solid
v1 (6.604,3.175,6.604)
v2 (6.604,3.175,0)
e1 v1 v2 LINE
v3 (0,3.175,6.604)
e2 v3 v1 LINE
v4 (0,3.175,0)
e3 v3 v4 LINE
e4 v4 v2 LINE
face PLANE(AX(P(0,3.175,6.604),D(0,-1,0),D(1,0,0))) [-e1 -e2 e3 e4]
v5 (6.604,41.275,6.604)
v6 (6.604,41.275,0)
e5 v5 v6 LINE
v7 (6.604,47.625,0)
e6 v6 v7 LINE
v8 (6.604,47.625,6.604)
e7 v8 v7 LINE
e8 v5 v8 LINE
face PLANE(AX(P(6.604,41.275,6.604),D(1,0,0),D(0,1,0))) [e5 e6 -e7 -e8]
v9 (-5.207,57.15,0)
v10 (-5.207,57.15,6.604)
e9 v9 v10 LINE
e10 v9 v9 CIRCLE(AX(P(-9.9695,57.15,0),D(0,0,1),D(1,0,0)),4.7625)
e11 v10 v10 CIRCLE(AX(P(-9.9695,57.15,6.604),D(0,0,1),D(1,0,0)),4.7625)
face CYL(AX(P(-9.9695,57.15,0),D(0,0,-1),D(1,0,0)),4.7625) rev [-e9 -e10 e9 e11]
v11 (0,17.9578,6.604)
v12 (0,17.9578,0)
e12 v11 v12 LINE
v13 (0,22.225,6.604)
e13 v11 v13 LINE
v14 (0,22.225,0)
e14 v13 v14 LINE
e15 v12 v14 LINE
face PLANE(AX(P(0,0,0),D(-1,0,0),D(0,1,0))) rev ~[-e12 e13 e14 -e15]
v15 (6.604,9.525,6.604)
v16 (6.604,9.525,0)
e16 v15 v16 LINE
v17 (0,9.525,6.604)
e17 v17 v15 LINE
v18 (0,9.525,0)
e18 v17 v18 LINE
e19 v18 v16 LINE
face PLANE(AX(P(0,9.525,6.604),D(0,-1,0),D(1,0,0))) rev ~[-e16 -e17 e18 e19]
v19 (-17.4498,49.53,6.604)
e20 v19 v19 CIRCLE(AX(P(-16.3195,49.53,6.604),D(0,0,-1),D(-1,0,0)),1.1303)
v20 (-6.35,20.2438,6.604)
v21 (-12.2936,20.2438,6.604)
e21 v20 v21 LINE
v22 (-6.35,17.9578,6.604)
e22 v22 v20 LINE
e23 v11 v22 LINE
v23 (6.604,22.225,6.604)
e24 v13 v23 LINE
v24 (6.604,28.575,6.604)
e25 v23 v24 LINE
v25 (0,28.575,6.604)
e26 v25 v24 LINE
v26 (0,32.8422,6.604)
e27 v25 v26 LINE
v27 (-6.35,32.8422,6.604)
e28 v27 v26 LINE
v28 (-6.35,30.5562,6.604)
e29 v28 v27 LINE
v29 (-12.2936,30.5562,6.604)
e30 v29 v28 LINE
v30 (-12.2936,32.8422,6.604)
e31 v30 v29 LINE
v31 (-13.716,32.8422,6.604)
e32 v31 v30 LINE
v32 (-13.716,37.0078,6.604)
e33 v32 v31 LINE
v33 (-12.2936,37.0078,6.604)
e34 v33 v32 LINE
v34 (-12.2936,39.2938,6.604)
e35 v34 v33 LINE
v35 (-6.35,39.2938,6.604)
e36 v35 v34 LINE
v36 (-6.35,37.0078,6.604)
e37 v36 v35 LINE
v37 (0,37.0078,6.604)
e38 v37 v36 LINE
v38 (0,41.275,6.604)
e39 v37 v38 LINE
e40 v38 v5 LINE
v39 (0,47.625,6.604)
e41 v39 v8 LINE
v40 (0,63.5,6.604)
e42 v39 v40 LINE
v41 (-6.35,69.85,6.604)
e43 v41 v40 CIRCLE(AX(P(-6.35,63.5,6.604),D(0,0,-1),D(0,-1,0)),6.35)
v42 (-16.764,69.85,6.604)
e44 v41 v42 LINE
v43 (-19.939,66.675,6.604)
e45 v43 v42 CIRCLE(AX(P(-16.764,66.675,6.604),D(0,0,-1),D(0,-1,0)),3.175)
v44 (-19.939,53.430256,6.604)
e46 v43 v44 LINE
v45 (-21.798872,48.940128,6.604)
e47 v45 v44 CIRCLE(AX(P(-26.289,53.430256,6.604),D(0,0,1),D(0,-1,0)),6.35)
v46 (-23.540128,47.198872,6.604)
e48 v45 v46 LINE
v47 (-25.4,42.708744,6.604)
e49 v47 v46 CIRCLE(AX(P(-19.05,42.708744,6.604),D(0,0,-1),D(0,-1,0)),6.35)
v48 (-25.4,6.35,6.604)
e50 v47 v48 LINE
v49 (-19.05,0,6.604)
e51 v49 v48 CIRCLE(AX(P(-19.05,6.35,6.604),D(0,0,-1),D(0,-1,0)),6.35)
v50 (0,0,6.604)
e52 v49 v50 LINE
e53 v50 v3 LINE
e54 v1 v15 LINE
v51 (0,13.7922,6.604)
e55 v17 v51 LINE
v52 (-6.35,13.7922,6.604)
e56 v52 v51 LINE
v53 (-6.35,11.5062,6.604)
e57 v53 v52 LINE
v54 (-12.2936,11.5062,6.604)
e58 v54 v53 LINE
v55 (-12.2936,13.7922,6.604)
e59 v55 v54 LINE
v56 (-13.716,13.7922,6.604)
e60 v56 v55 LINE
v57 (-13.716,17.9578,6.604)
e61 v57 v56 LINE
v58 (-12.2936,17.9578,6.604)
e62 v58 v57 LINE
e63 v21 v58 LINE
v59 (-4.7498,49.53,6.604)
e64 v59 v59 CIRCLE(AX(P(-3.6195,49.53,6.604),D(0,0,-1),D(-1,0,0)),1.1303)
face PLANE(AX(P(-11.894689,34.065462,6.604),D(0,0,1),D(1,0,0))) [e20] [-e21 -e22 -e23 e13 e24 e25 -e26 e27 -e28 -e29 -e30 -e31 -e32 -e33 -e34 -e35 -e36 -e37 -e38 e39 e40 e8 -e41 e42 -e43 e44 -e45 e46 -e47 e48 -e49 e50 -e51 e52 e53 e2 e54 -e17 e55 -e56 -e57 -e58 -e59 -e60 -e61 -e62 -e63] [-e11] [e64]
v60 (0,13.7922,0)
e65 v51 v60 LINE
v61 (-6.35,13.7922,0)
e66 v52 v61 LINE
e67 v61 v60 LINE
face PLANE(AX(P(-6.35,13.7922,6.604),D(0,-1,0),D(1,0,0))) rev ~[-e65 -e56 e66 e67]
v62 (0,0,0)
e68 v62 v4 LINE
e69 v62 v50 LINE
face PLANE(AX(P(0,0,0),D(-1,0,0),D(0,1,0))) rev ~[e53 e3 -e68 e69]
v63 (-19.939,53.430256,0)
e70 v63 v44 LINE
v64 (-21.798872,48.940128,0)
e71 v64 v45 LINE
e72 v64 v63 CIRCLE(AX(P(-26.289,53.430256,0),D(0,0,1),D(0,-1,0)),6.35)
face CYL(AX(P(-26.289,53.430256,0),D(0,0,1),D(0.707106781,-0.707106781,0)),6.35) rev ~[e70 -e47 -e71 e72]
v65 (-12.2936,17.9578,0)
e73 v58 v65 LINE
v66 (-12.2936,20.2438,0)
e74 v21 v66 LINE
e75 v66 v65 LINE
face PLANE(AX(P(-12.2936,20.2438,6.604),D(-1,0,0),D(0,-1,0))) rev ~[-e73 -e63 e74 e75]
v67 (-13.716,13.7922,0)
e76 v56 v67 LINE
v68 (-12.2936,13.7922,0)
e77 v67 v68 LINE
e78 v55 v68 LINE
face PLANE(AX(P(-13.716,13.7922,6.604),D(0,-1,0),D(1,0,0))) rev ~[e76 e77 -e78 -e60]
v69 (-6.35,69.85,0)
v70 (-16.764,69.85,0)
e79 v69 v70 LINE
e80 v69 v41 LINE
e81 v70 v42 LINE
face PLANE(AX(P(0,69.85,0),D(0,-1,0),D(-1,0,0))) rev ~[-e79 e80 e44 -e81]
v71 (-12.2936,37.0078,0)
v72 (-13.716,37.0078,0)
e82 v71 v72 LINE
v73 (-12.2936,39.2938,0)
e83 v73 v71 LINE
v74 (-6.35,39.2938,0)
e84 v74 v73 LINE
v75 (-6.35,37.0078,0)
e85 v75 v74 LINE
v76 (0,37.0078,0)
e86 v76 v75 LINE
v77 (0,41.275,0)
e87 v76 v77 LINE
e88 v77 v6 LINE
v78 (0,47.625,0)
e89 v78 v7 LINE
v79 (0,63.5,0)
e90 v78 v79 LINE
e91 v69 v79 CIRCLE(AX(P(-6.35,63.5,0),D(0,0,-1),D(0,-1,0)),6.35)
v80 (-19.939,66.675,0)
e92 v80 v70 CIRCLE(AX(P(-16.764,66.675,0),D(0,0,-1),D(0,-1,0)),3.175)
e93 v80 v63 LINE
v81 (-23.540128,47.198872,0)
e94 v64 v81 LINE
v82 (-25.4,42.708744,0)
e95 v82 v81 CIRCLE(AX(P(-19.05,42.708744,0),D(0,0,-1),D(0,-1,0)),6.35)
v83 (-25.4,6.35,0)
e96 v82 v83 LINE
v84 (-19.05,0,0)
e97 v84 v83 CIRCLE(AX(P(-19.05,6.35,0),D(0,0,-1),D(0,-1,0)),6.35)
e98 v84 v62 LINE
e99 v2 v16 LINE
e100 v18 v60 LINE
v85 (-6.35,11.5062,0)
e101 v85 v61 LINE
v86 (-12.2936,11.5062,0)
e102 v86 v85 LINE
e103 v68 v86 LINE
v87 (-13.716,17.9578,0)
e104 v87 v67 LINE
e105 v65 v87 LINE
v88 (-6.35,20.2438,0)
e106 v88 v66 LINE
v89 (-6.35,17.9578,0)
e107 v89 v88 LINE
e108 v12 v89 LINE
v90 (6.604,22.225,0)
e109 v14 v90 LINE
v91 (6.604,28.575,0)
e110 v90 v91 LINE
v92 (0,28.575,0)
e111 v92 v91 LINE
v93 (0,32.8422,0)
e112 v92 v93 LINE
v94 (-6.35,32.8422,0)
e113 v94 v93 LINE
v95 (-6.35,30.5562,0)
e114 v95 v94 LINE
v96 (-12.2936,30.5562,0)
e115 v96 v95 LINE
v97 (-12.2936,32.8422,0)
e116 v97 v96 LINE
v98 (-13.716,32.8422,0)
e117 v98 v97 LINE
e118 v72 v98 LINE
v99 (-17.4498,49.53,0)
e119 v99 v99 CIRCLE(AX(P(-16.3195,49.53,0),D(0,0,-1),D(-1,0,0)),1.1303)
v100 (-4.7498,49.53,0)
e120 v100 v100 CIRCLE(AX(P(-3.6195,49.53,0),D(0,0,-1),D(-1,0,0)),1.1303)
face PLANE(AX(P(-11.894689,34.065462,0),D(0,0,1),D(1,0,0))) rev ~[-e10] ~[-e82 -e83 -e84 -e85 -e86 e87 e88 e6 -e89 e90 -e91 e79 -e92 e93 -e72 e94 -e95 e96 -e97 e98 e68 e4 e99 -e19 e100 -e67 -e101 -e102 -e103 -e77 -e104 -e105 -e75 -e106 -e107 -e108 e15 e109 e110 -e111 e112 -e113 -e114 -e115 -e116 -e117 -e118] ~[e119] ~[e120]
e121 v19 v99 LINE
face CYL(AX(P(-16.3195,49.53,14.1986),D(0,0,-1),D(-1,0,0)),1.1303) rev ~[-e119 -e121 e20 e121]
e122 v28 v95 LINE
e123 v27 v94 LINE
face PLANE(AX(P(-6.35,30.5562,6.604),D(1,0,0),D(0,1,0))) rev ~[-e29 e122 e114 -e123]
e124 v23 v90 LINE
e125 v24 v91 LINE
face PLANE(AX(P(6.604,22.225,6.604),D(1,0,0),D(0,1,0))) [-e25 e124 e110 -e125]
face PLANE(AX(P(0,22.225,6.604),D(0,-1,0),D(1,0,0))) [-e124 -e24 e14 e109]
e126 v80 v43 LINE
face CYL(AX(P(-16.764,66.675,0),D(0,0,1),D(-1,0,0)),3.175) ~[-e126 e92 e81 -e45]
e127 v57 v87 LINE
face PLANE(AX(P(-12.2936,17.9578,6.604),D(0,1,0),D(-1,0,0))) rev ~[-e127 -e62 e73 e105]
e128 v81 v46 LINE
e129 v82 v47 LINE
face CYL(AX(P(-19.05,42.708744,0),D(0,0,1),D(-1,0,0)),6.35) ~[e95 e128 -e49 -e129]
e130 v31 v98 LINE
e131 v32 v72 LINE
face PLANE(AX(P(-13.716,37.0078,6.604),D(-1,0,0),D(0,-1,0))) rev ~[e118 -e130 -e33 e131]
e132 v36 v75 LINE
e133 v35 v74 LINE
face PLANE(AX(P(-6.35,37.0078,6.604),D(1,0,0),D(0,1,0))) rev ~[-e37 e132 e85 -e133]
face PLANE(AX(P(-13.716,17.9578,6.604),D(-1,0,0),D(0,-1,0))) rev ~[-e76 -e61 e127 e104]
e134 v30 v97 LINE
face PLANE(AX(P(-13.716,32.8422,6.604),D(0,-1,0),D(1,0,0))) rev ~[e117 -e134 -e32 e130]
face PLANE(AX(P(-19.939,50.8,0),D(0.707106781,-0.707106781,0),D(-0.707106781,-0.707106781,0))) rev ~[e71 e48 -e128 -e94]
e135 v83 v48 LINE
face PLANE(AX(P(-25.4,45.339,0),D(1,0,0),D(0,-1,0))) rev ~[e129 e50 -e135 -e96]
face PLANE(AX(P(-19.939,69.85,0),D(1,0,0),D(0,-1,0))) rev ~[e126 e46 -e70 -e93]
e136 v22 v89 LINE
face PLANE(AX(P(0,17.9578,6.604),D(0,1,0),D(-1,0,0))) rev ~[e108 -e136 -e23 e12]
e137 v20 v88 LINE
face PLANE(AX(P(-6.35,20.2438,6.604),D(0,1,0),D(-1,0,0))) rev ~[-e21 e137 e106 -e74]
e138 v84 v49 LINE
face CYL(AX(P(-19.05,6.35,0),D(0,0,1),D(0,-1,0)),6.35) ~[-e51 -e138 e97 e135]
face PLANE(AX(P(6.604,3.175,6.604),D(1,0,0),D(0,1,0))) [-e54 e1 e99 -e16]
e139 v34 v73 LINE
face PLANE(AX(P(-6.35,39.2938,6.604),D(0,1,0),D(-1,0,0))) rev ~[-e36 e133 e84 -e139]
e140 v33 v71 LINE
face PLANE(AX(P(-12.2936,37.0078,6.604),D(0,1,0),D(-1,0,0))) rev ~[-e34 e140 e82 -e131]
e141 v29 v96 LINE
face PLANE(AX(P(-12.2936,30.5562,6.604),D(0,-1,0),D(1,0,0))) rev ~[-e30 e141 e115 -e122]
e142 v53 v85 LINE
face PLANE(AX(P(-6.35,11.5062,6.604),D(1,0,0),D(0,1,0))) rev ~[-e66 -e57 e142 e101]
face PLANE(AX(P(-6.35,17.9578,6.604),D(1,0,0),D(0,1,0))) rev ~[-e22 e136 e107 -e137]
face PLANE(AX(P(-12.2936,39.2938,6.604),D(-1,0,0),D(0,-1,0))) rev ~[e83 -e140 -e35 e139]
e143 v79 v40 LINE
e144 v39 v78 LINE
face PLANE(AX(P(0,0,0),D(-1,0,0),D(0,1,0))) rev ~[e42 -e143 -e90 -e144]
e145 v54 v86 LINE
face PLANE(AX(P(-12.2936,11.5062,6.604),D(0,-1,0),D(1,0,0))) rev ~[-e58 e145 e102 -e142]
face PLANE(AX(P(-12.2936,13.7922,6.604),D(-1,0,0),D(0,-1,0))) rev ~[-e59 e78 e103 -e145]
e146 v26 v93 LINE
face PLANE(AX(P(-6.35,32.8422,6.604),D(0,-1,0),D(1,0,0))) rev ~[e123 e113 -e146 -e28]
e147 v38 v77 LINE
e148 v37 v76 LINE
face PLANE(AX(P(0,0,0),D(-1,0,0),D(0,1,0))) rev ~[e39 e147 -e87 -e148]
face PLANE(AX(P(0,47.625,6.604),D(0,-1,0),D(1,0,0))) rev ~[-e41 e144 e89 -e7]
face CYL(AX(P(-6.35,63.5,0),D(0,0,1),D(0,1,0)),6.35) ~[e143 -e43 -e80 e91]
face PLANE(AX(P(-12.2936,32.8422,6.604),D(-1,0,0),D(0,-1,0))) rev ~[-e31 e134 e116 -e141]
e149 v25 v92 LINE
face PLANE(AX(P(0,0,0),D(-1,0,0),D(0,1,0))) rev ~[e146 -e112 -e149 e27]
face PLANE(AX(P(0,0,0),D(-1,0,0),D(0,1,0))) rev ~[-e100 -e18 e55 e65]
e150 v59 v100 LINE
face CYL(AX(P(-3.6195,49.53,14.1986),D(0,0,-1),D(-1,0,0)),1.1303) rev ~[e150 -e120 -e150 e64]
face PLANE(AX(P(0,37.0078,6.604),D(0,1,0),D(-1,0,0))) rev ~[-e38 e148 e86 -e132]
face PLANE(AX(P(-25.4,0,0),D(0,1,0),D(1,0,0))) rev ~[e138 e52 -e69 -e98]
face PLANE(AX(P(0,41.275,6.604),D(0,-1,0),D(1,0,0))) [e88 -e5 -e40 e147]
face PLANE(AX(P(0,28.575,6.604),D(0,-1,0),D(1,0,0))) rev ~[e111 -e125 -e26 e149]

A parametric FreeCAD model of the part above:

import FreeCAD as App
import Part
import Sketcher
Q = App.Units.Quantity


def edges_at(feature, points):
    """Names of the edges that pass closest to the given points."""
    edges = feature.Shape.Edges
    near = lambda p: min(range(len(edges)), key=lambda i: edges[i].distToShape(Part.Vertex(*p))[0])
    return sorted({f"Edge{near(p) + 1}" for p in points})


def add_polygon(sketch, points):
    """Adds a closed chain of lines whose ends are joined by coincident constraints."""
    first, n = sketch.GeometryCount, len(points)
    for a, b in zip(points, points[1:] + points[:1]):
        sketch.addGeometry(Part.LineSegment(App.Vector(*a, 0), App.Vector(*b, 0)), False)
    for i in range(n):
        sketch.addConstraint(Sketcher.Constraint("Coincident", first + i, 2, first + (i + 1) % n, 1))

doc = App.newDocument("Part")
params = doc.addObject("Spreadsheet::Sheet", "Params")
for row, (alias, value) in enumerate([
    ("sketch1_width", "1 in"),
    ("sketch1_diameter", "0.375 in"),
    ("sketch1_height", "2.75 in"),
    ("sketch1_width2", "0.785 in"),
    ("pad1_length", "0.26 in"),
    ("sketch2_width", "0.25 in"),
    ("sketch2_height", "0.09 in"),
    ("sketch2_width2", "0.056 in"),
    ("sketch2_width3", "0.234 in"),
    ("sketch2_height2", "0.164 in"),
    ("sketch3_width", "0.26 in"),
    ("sketch3_height", "0.25 in"),
    ("pad2_length", "0.26 in"),
    ("fillet_radius", "0.25 in"),
    ("fillet2_radius", "0.125 in"),
    ("sketch4_diameter", "0.089 in"),
    ("hole_diameter", "0.089 in"),
    ("hole_depth", "0.299 in"),
], start=1):
    params.set(f"A{row}", alias)
    params.set(f"B{row}", "=" + value)
    params.setAlias(f"B{row}", alias)

body = doc.addObject("PartDesign::Body", "Body")

sketch1 = doc.addObject("Sketcher::SketchObject", "Sketch")
body.addObject(sketch1)
sketch1.AttachmentSupport = (doc.XY_Plane, [""])
sketch1.MapMode = "FlatFace"
add_polygon(sketch1, [(0, 0), (0, 69.8), (-19.9, 69.8), (-19.9, 50.8), (-25.4, 45.3), (-25.4, 0)])
sketch1.addGeometry(Part.Circle(App.Vector(-10, 57.1, 0), App.Vector(0, 0, 1), 4.8), False)
sketch1.addConstraint([
    Sketcher.Constraint("Vertical", 0),
    Sketcher.Constraint("Horizontal", 1),
    Sketcher.Constraint("Vertical", 2),
    Sketcher.Constraint("Vertical", 4),
    Sketcher.Constraint("Horizontal", 5),
    Sketcher.Constraint("Coincident", 5, 2, -1, 1),
    Sketcher.Constraint("DistanceX", 5, 1, 5, 2, Q("1 in")),
    Sketcher.Constraint("Diameter", 6, Q("0.375 in")),
    Sketcher.Constraint("DistanceY", -1, 1, 2, 2, Q("2 in")),
    Sketcher.Constraint("Angle", 3, Q("-135 deg")),
    Sketcher.Constraint("DistanceY", 0, 1, 0, 2, Q("2.75 in")),
    Sketcher.Constraint("DistanceY", 6, 3, 0, 2, Q("0.5 in")),
    Sketcher.Constraint("DistanceX", 1, 2, 1, 1, Q("0.785 in")),
    Sketcher.Constraint("DistanceX", 6, 3, -1, 1, Q("0.3925 in")),
])
sketch1.setExpression("Constraints[12]", "Params.sketch1_width")
sketch1.setExpression("Constraints[13]", "Params.sketch1_diameter")
sketch1.setExpression("Constraints[16]", "Params.sketch1_height")
sketch1.setExpression("Constraints[18]", "Params.sketch1_width2")
pad1 = doc.addObject("PartDesign::Pad", "Pad")
body.addObject(pad1)
pad1.Profile = sketch1
pad1.setExpression("Length", "Params.pad1_length")

sketch2 = doc.addObject("Sketcher::SketchObject", "Sketch001")
body.addObject(sketch2)
sketch2.AttachmentSupport = (doc.XY_Plane, [""])
sketch2.MapMode = "FlatFace"
sketch2.AttachmentOffset = App.Placement(App.Vector(0, 0, 0.26 * 25.4), App.Rotation())
add_polygon(sketch2, [(-12.3, 37), (-13.7, 37), (-13.7, 32.8), (-12.3, 32.8), (-12.3, 30.6), (-6.3, 30.6), (-6.3, 32.8), (0, 32.8), (0, 37), (-6.3, 37), (-6.3, 39.3), (-12.3, 39.3)])
add_polygon(sketch2, [(-12.3, 20.2), (-12.3, 18), (-13.7, 18), (-13.7, 13.8), (-12.3, 13.8), (-12.3, 11.5), (-6.3, 11.5), (-6.3, 13.8), (0, 13.8), (0, 18), (-6.3, 18), (-6.3, 20.2)])
sketch2.addConstraint([
    Sketcher.Constraint("Horizontal", 0),
    Sketcher.Constraint("Vertical", 1),
    Sketcher.Constraint("Horizontal", 2),
    Sketcher.Constraint("Vertical", 3),
    Sketcher.Constraint("Horizontal", 4),
    Sketcher.Constraint("Vertical", 5),
    Sketcher.Constraint("Horizontal", 6),
    Sketcher.Constraint("Vertical", 7),
    Sketcher.Constraint("Horizontal", 8),
    Sketcher.Constraint("Vertical", 9),
    Sketcher.Constraint("Horizontal", 10),
    Sketcher.Constraint("Vertical", 11),
    Sketcher.Constraint("Vertical", 12),
    Sketcher.Constraint("Horizontal", 13),
    Sketcher.Constraint("Vertical", 14),
    Sketcher.Constraint("Horizontal", 15),
    Sketcher.Constraint("Vertical", 16),
    Sketcher.Constraint("Horizontal", 17),
    Sketcher.Constraint("Vertical", 18),
    Sketcher.Constraint("Horizontal", 19),
    Sketcher.Constraint("Vertical", 20),
    Sketcher.Constraint("Horizontal", 21),
    Sketcher.Constraint("Vertical", 22),
    Sketcher.Constraint("Horizontal", 23),
    Sketcher.Constraint("PointOnObject", 6, 2, -2),
    Sketcher.Constraint("PointOnObject", 19, 2, -2),
    Sketcher.Constraint("Horizontal", 2, 2, 5, 2),
    Sketcher.Constraint("Horizontal", 0, 2, 7, 2),
    Sketcher.Constraint("Horizontal", 15, 2, 18, 2),
    Sketcher.Constraint("Horizontal", 13, 2, 20, 2),
    Sketcher.Constraint("Vertical", 5, 2, 8, 2),
    Sketcher.Constraint("Vertical", 3, 2, 10, 2),
    Sketcher.Constraint("Vertical", 11, 2, 12, 2),
    Sketcher.Constraint("Vertical", 1, 2, 13, 2),
    Sketcher.Constraint("Vertical", 12, 2, 15, 2),
    Sketcher.Constraint("Vertical", 9, 2, 17, 2),
    Sketcher.Constraint("Vertical", 18, 2, 21, 2),
    Sketcher.Constraint("Equal", 5, 9),
    Sketcher.Constraint("Equal", 11, 12),
    Sketcher.Constraint("Equal", 7, 14),
    Sketcher.Constraint("Equal", 12, 16),
    Sketcher.Constraint("DistanceX", 6, 1, 6, 2, Q("0.25 in")),
    Sketcher.Constraint("DistanceY", 3, 2, 3, 1, Q("0.09 in")),
    Sketcher.Constraint("DistanceX", 0, 2, 0, 1, Q("0.056 in")),
    Sketcher.Constraint("DistanceX", 4, 1, 4, 2, Q("0.234 in")),
    Sketcher.Constraint("DistanceY", 1, 2, 1, 1, Q("0.164 in")),
    Sketcher.Constraint("DistanceY", 14, 2, 3, 2, Q("0.66 in")),
    Sketcher.Constraint("DistanceY", -1, 1, 0, 2, Q("1.457 in")),
])
sketch2.setExpression("Constraints[65]", "Params.sketch2_width")
sketch2.setExpression("Constraints[66]", "Params.sketch2_height")
sketch2.setExpression("Constraints[67]", "Params.sketch2_width2")
sketch2.setExpression("Constraints[68]", "Params.sketch2_width3")
sketch2.setExpression("Constraints[69]", "Params.sketch2_height2")
pocket1 = doc.addObject("PartDesign::Pocket", "Pocket")
body.addObject(pocket1)
pocket1.Profile = sketch2
pocket1.Type = "ThroughAll"

sketch3 = doc.addObject("Sketcher::SketchObject", "Sketch002")
body.addObject(sketch3)
sketch3.AttachmentSupport = (doc.XY_Plane, [""])
sketch3.MapMode = "FlatFace"
sketch3.AttachmentOffset = App.Placement(App.Vector(0, 0, 0.26 * 25.4), App.Rotation())
add_polygon(sketch3, [(0, 48), (0, 41), (7, 41), (7, 48)])
add_polygon(sketch3, [(0, 29), (0, 22), (7, 22), (7, 29)])
add_polygon(sketch3, [(0, 10), (0, 3), (7, 3), (7, 10)])
sketch3.addConstraint([
    Sketcher.Constraint("Vertical", 0),
    Sketcher.Constraint("Horizontal", 1),
    Sketcher.Constraint("Vertical", 2),
    Sketcher.Constraint("Horizontal", 3),
    Sketcher.Constraint("Vertical", 4),
    Sketcher.Constraint("Horizontal", 5),
    Sketcher.Constraint("Vertical", 6),
    Sketcher.Constraint("Horizontal", 7),
    Sketcher.Constraint("Vertical", 8),
    Sketcher.Constraint("Horizontal", 9),
    Sketcher.Constraint("Vertical", 10),
    Sketcher.Constraint("Horizontal", 11),
    Sketcher.Constraint("PointOnObject", 0, 2, -2),
    Sketcher.Constraint("PointOnObject", 4, 2, -2),
    Sketcher.Constraint("PointOnObject", 8, 2, -2),
    Sketcher.Constraint("Vertical", 2, 2, 5, 2),
    Sketcher.Constraint("Vertical", 6, 2, 9, 2),
    Sketcher.Constraint("Equal", 2, 4),
    Sketcher.Constraint("Equal", 6, 8),
    Sketcher.Constraint("DistanceY", 4, 2, 3, 2, Q("1 in")),
    Sketcher.Constraint("DistanceY", 8, 2, 7, 2, Q("1 in")),
    Sketcher.Constraint("DistanceX", 1, 1, 1, 2, Q("0.26 in")),
    Sketcher.Constraint("DistanceY", 0, 2, 0, 1, Q("0.25 in")),
    Sketcher.Constraint("DistanceY", -1, 1, 0, 2, Q("1.625 in")),
])
sketch3.setExpression("Constraints[33]", "Params.sketch3_width")
sketch3.setExpression("Constraints[34]", "Params.sketch3_height")
pad2 = doc.addObject("PartDesign::Pad", "Pad001")
body.addObject(pad2)
pad2.Profile = sketch3
pad2.setExpression("Length", "Params.pad2_length")
pad2.Reversed = True
doc.recompute()

fillet = doc.addObject("PartDesign::Fillet", "Fillet")
body.addObject(fillet)
fillet.Base = (pad2, edges_at(pad2, [
    (-25.4, 0, 3.302),
    (-25.4, 45.339, 3.302),
    (-19.939, 50.8, 3.302),
    (0, 69.85, 3.302),
]))
fillet.setExpression("Radius", "Params.fillet_radius")
doc.recompute()

fillet2 = doc.addObject("PartDesign::Fillet", "Fillet001")
body.addObject(fillet2)
fillet2.Base = (fillet, edges_at(fillet, [(-19.939, 69.85, 3.302)]))
fillet2.setExpression("Radius", "Params.fillet2_radius")

sketch4 = doc.addObject("Sketcher::SketchObject", "Sketch003")
body.addObject(sketch4)
sketch4.AttachmentSupport = (doc.XY_Plane, [""])
sketch4.MapMode = "FlatFace"
sketch4.AttachmentOffset = App.Placement(App.Vector(0, 0, 0.26 * 25.4), App.Rotation())
sketch4.addGeometry([
    Part.Circle(App.Vector(-3.6, 49.5, 0), App.Vector(0, 0, 1), 1.1),
    Part.Circle(App.Vector(-16.3, 49.5, 0), App.Vector(0, 0, 1), 1.1),
], False)
sketch4.addConstraint([
    Sketcher.Constraint("Equal", 0, 1),
    Sketcher.Constraint("Horizontal", 0, 3, 1, 3),
    Sketcher.Constraint("Diameter", 0, Q("0.089 in")),
    Sketcher.Constraint("DistanceX", 1, 3, 0, 3, Q("0.5 in")),
    Sketcher.Constraint("DistanceY", -1, 1, 0, 3, Q("1.95 in")),
    Sketcher.Constraint("DistanceX", 0, 3, -1, 1, Q("0.1425 in")),
])
sketch4.setExpression("Constraints[2]", "Params.sketch4_diameter")
doc.recompute()
hole = doc.addObject("PartDesign::Hole", "Hole")
body.addObject(hole)
hole.Profile = sketch4
hole.ThreadType = "None"
hole.setExpression("Diameter", "Params.hole_diameter")
hole.DepthType = "Dimension"
hole.setExpression("Depth", "Params.hole_depth")
hole.DrillPoint = "Angled"
hole.DrillPointAngle = 118

doc.recompute()
